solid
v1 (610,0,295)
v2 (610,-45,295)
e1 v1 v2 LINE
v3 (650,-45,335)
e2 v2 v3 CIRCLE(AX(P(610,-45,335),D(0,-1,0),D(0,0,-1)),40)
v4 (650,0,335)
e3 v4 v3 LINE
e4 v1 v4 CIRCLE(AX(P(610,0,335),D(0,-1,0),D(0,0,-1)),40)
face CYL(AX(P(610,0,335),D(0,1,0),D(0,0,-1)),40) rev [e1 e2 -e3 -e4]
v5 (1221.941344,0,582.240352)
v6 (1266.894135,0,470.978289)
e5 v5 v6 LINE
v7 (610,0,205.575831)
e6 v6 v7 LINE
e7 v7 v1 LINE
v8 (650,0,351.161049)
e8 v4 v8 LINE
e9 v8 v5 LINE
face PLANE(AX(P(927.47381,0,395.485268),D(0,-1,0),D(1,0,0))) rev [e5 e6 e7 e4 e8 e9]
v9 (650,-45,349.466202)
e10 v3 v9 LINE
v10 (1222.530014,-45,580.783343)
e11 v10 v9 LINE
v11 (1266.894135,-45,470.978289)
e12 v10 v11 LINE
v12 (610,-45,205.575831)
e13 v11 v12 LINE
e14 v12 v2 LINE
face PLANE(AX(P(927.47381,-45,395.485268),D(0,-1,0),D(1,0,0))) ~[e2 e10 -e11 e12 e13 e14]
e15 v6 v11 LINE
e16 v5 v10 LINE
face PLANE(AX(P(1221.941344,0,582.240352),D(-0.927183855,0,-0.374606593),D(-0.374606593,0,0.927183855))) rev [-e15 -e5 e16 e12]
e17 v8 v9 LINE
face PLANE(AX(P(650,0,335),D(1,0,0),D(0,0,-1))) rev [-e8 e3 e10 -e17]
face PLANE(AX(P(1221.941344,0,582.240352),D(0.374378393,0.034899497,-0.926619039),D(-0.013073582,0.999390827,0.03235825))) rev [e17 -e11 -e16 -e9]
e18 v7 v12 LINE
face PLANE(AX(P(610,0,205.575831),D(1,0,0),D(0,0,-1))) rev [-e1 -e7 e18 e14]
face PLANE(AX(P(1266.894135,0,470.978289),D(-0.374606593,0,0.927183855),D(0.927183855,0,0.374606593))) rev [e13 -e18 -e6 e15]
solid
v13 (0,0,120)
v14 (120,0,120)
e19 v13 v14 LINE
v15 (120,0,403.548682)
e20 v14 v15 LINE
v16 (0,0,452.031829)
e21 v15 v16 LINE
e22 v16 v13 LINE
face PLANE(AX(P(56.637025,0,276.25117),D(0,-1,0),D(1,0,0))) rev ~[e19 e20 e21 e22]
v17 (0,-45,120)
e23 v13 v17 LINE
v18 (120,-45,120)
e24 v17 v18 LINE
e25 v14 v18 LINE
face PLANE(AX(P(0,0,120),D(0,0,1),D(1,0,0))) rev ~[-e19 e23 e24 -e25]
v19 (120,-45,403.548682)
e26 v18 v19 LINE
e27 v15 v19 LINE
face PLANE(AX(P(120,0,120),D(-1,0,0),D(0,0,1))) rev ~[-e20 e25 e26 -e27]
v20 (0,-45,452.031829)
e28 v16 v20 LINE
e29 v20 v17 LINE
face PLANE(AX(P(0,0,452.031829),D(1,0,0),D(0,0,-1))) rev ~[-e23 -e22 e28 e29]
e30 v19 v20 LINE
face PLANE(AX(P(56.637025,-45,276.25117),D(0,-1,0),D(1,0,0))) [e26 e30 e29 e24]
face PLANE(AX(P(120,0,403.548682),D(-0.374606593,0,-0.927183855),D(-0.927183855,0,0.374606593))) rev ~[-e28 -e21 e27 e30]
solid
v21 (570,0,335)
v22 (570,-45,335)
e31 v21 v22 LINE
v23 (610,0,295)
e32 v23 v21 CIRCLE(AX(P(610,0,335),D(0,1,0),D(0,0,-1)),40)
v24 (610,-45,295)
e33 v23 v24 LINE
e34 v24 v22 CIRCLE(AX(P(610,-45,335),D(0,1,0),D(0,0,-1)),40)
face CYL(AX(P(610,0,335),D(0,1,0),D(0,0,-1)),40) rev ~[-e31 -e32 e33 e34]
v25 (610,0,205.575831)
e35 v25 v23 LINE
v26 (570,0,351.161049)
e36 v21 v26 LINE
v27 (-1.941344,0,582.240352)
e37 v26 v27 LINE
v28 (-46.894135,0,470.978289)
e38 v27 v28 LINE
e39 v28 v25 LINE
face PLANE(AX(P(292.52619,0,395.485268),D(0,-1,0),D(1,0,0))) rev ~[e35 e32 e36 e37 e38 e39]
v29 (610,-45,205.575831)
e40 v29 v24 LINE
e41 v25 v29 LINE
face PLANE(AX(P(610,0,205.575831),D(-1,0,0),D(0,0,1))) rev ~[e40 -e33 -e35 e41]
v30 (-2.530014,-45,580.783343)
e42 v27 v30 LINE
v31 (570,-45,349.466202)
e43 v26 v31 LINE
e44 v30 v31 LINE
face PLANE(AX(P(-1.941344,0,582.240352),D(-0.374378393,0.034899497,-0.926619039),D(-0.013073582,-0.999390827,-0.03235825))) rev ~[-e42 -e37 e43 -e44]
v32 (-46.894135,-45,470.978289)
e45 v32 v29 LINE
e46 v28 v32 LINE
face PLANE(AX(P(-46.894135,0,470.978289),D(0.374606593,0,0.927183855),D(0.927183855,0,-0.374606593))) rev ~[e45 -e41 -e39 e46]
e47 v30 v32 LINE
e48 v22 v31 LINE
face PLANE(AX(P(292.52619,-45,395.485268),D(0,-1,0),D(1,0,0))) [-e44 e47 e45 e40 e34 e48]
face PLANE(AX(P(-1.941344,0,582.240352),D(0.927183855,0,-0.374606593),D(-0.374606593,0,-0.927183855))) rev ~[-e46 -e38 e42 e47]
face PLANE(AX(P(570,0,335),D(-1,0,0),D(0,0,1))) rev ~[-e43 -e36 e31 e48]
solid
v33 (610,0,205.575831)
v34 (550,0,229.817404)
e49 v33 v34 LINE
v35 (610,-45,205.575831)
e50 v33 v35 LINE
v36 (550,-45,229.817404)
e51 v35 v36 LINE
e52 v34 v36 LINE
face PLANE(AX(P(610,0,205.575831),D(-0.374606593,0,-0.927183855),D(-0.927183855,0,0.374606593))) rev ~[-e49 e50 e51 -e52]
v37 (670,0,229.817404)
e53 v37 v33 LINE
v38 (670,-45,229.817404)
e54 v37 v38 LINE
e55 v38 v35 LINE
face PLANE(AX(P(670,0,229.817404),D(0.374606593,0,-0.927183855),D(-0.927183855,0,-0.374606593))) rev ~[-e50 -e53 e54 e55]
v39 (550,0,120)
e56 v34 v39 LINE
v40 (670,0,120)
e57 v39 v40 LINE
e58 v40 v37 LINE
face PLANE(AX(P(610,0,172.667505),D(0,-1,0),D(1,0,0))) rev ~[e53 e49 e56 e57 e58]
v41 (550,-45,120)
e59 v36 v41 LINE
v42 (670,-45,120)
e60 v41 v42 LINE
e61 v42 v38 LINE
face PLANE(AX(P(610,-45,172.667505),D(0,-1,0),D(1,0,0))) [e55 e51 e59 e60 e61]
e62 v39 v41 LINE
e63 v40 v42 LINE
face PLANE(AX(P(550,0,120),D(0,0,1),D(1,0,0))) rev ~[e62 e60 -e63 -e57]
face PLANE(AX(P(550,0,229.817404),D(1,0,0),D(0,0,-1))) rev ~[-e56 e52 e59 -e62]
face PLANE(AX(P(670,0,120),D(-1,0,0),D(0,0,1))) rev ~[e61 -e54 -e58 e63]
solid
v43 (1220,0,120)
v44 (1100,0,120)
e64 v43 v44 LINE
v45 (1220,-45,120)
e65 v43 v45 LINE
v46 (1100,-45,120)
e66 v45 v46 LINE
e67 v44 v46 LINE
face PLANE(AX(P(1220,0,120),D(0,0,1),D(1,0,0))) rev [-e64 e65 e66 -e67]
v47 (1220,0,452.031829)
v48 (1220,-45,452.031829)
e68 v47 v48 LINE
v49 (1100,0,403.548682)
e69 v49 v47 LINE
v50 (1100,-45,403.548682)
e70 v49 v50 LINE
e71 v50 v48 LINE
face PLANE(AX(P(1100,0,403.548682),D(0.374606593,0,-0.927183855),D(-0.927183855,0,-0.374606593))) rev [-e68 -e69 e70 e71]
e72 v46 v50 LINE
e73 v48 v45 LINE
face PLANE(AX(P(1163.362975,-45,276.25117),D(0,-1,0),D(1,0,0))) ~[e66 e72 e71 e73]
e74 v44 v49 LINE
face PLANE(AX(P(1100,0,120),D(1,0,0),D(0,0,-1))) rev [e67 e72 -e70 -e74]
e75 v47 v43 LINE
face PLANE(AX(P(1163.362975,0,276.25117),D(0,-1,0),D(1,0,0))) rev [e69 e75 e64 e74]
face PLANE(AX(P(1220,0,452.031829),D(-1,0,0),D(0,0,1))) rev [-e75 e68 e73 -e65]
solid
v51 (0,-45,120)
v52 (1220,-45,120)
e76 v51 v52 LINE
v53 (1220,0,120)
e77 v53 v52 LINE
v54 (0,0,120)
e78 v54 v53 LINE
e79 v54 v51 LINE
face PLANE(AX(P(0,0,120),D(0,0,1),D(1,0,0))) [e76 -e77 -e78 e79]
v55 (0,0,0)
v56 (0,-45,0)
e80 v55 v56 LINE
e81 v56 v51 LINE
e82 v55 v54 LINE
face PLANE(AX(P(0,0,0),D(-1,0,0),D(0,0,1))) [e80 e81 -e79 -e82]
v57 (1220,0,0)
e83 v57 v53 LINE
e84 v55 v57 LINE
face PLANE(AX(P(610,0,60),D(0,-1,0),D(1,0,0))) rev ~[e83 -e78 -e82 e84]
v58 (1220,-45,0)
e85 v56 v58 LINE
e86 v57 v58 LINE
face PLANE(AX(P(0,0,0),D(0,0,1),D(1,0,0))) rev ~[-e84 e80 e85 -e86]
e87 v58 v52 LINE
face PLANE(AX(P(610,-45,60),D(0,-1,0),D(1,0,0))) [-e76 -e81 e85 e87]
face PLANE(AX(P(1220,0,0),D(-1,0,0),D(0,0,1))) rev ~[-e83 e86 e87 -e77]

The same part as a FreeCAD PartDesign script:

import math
import FreeCAD as App
import Part
import Sketcher
from FreeCAD import Vector
Q = App.Units.Quantity


def add_polygon(sketch, points):
    """Adds a closed chain of lines whose ends are joined by coincident constraints."""
    first, n = sketch.GeometryCount, len(points)
    for a, b in zip(points, points[1:] + points[:1]):
        sketch.addGeometry(Part.LineSegment(App.Vector(*a, 0), App.Vector(*b, 0)), False)
    for i in range(n):
        sketch.addConstraint(Sketcher.Constraint("Coincident", first + i, 2, first + (i + 1) % n, 1))

doc = App.newDocument("Part")
body = doc.addObject("PartDesign::Body", "Body")

# Sketch on XZ plane
sketch1 = doc.addObject("Sketcher::SketchObject", "Sketch")
body.addObject(sketch1)
sketch1.AttachmentSupport = (doc.XZ_Plane, [""])
sketch1.MapMode = "FlatFace"
add_polygon(sketch1, [(0, 120), (0, 0), (1220, 0), (1220, 120)])  # lines 0-3
sketch1.addConstraint([
    Sketcher.Constraint("Vertical", 0),
    Sketcher.Constraint("Horizontal", 1),
    Sketcher.Constraint("Vertical", 2),
    Sketcher.Constraint("Horizontal", 3),
    Sketcher.Constraint("Coincident", 0, 2, -1, 1),
    Sketcher.Constraint("DistanceX", 1, 1, 1, 2, Q("1220 mm")),
    Sketcher.Constraint("DistanceY", 0, 2, 0, 1, Q("120 mm")),
])
pad1 = doc.addObject("PartDesign::Pad", "Pad")
body.addObject(pad1)
pad1.Profile = sketch1
pad1.Length = 45
body2 = doc.addObject("PartDesign::Body", "Body001")

# Sketch on XZ plane
sketch2 = doc.addObject("Sketcher::SketchObject", "Sketch001")
body2.addObject(sketch2)
sketch2.AttachmentSupport = (doc.getObject("XZ_Plane001"), [""])
sketch2.MapMode = "FlatFace"
sketch2.addGeometry([
    Part.LineSegment(Vector(570, 335, 0), Vector(570, 351, 0)),  # 0
    Part.LineSegment(Vector(570, 351, 0), Vector(-2, 582, 0)),  # 1
    Part.LineSegment(Vector(-2, 582, 0), Vector(-47, 471, 0)),  # 2
    Part.LineSegment(Vector(-47, 471, 0), Vector(610, 206, 0)),  # 3
    Part.LineSegment(Vector(610, 206, 0), Vector(610, 295, 0)),  # 4
    Part.ArcOfCircle(Part.Circle(Vector(610, 335, 0), Vector(0, 0, 1), 40), math.radians(180), math.radians(270)),  # 5
], False)
sketch2.addConstraint([
    Sketcher.Constraint("Coincident", 0, 2, 1, 1),
    Sketcher.Constraint("Coincident", 1, 2, 2, 1),
    Sketcher.Constraint("Coincident", 2, 2, 3, 1),
    Sketcher.Constraint("Coincident", 3, 2, 4, 1),
    Sketcher.Constraint("Coincident", 4, 2, 5, 2),
    Sketcher.Constraint("Tangent", 5, 1, 0, 1),
    Sketcher.Constraint("Vertical", 0),
    Sketcher.Constraint("Vertical", 4),
    Sketcher.Constraint("Perpendicular", 1, 2),
    Sketcher.Constraint("Perpendicular", 2, 3),
    Sketcher.Constraint("Vertical", 5, 3, 3, 2),
    Sketcher.Constraint("Radius", 5, Q("40 mm")),
    Sketcher.Constraint("Angle", 1, Q("158 deg")),
    Sketcher.Constraint("Distance", 2, Q("120 mm")),
    Sketcher.Constraint("DistanceX", -1, 1, 5, 3, Q("610 mm")),
    Sketcher.Constraint("DistanceY", -1, 1, 5, 3, Q("335 mm")),
    Sketcher.Constraint("DistanceY", 0, 1, 0, 2, Q("16.161049 mm")),
    Sketcher.Constraint("Distance", 1, Q("616.85861 mm")),
])
pad2 = doc.addObject("PartDesign::Pad", "Pad001")
body2.addObject(pad2)
pad2.Profile = sketch2
pad2.Length = 45

# Sketch on an angled plane
sketch3 = doc.addObject("Sketcher::SketchObject", "Sketch002")
body2.addObject(sketch3)
sketch3.Placement = App.Placement(Vector(-203.897982, 0, 82.380132), App.Rotation(Vector(0, -1, 0), Vector(0.374606593, 0, 0.927183855), Vector(-0.927183855, 0, 0.374606593), "ZXY"))
add_polygon(sketch3, [(45, 537.5), (45, 539.1), (0, 539.1)])  # lines 0-2
sketch3.addConstraint([
    Sketcher.Constraint("Vertical", 0),
    Sketcher.Constraint("Horizontal", 1),
    Sketcher.Constraint("PointOnObject", 1, 2, -2),
    Sketcher.Constraint("DistanceX", 1, 2, 1, 1, Q("45 mm")),
    Sketcher.Constraint("Angle", 2, Q("-2 deg")),
    Sketcher.Constraint("DistanceY", -1, 1, 2, 2, Q("537.545179 mm")),
])
pocket1 = doc.addObject("PartDesign::Pocket", "Pocket")
body2.addObject(pocket1)
pocket1.Profile = sketch3
pocket1.Type = "ThroughAll"
body3 = doc.addObject("PartDesign::Body", "Body002")

# Sketch on XZ plane
sketch4 = doc.addObject("Sketcher::SketchObject", "Sketch003")
body3.addObject(sketch4)
sketch4.AttachmentSupport = (doc.getObject("XZ_Plane002"), [""])
sketch4.MapMode = "FlatFace"
add_polygon(sketch4, [(0, 452), (0, 120), (120, 120), (120, 404)])  # lines 0-3
sketch4.addConstraint([
    Sketcher.Constraint("Vertical", 0),
    Sketcher.Constraint("Horizontal", 1),
    Sketcher.Constraint("Vertical", 2),
    Sketcher.Constraint("PointOnObject", 0, 2, -2),
    Sketcher.Constraint("DistanceX", 1, 1, 1, 2, Q("120 mm")),
    Sketcher.Constraint("Angle", 3, Q("158 deg")),
    Sketcher.Constraint("DistanceY", -1, 1, 0, 2, Q("120 mm")),
    Sketcher.Constraint("DistanceY", 0, 2, 0, 1, Q("332.031829 mm")),
])
pad3 = doc.addObject("PartDesign::Pad", "Pad002")
body3.addObject(pad3)
pad3.Profile = sketch4
pad3.Length = 45
body4 = doc.addObject("PartDesign::Body", "Body003")
doc.recompute()

mirroring = doc.addObject("Part::Mirroring", "Mirroring")
mirroring.Source = body2
mirroring.Base = Vector(610, 0, 0)
mirroring.Normal = Vector(1, 0, 0)
body4.BaseFeature = mirroring
doc.recompute()
body5 = doc.addObject("PartDesign::Body", "Body004")
doc.recompute()

mirroring2 = doc.addObject("Part::Mirroring", "Mirroring001")
mirroring2.Source = body3
mirroring2.Base = Vector(610, 0, 0)
mirroring2.Normal = Vector(1, 0, 0)
body5.BaseFeature = mirroring2
doc.recompute()
body6 = doc.addObject("PartDesign::Body", "Body005")

# Sketch on XZ plane
sketch5 = doc.addObject("Sketcher::SketchObject", "Sketch004")
body6.addObject(sketch5)
sketch5.AttachmentSupport = (doc.getObject("XZ_Plane005"), [""])
sketch5.MapMode = "FlatFace"
add_polygon(sketch5, [(550, 120), (670, 120), (670, 230), (610, 206), (550, 230)])  # lines 0-4
sketch5.addConstraint([
    Sketcher.Constraint("Horizontal", 0),
    Sketcher.Constraint("Vertical", 1),
    Sketcher.Constraint("Vertical", 4),
    Sketcher.Constraint("Horizontal", 1, 2, 3, 2),
    Sketcher.Constraint("Equal", 2, 3),
    Sketcher.Constraint("DistanceX", 0, 1, 0, 2, Q("120 mm")),
    Sketcher.Constraint("Angle", 2, Q("-158 deg")),
    Sketcher.Constraint("DistanceX", -1, 1, 0, 2, Q("670 mm")),
    Sketcher.Constraint("DistanceY", -1, 1, 0, 2, Q("120 mm")),
    Sketcher.Constraint("DistanceY", 1, 1, 1, 2, Q("109.817404 mm")),
])
pad4 = doc.addObject("PartDesign::Pad", "Pad003")
body6.addObject(pad4)
pad4.Profile = sketch5
pad4.Length = 45
mirroring.Visibility = False
mirroring2.Visibility = False

doc.recompute()
